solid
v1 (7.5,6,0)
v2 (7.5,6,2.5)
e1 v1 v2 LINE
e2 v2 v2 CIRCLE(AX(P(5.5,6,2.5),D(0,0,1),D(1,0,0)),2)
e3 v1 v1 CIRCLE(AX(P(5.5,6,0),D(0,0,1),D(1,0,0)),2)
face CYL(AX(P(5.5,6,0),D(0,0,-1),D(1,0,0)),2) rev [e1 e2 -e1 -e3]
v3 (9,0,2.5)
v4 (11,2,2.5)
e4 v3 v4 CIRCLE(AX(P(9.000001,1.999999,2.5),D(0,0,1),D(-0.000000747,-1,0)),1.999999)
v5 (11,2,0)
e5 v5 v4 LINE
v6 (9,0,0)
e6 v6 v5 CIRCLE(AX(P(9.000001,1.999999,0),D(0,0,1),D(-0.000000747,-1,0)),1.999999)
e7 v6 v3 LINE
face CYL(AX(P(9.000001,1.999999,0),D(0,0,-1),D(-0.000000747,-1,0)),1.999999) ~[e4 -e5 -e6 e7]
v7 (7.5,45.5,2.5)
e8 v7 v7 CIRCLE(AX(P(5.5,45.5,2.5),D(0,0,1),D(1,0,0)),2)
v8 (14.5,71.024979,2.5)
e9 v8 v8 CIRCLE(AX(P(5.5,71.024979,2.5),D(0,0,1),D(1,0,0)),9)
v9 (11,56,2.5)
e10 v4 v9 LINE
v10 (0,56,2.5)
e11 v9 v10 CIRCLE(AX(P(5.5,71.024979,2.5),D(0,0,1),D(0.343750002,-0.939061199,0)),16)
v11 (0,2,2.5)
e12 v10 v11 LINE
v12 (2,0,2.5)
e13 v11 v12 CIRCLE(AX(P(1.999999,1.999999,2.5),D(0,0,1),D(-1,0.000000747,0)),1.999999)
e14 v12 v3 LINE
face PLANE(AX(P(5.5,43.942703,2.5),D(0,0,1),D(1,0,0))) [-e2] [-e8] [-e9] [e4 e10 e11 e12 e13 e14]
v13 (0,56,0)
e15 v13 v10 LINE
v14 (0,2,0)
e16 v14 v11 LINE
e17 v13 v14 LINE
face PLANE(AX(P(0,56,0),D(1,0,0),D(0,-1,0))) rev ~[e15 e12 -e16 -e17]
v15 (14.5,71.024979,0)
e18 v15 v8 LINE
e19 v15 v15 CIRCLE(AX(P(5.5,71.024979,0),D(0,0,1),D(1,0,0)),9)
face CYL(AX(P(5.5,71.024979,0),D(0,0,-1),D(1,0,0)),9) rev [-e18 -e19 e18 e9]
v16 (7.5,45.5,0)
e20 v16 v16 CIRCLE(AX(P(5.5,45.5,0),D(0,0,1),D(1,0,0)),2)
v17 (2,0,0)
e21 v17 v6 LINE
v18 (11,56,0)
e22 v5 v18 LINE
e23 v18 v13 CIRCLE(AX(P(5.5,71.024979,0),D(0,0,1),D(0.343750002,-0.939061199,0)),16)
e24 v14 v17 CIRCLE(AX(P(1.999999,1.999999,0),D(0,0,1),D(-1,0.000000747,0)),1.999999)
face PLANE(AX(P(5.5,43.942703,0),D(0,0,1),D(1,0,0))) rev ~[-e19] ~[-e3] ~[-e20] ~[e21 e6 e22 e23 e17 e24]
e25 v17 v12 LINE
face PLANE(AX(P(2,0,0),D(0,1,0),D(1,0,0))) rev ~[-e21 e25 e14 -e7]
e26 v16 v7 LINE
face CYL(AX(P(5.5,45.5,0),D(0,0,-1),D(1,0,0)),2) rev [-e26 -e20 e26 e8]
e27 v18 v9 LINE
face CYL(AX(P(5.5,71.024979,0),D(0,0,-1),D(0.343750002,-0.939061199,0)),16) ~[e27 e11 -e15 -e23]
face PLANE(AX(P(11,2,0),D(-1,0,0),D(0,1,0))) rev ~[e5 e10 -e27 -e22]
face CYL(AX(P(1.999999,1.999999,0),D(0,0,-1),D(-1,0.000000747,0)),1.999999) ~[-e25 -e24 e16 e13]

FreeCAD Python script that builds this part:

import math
import FreeCAD as App
import Part
import Sketcher
from FreeCAD import Vector
Q = App.Units.Quantity

doc = App.newDocument("Part")
body = doc.addObject("PartDesign::Body", "Body")

# Sketch on XY plane
sketch1 = body.newObject("Sketcher::SketchObject", "Sketch")
sketch1.AttachmentSupport = (doc.getObject("XY_Plane"), [""])
sketch1.MapMode = "FlatFace"
sketch1.addGeometry([
    Part.ArcOfCircle(Part.Circle(Vector(2, 2, 0), Vector(0, 0, 1), 2), math.radians(180), math.radians(270)),  # 0
    Part.LineSegment(Vector(2, 0, 0), Vector(9, 0, 0)),  # 1
    Part.ArcOfCircle(Part.Circle(Vector(9, 2, 0), Vector(0, 0, 1), 2), math.radians(-90), math.radians(0)),  # 2
    Part.LineSegment(Vector(11, 2, 0), Vector(11, 56, 0)),  # 3
    Part.ArcOfCircle(Part.Circle(Vector(5.5, 71, 0), Vector(0, 0, 1), 16), math.radians(-70), math.radians(250)),  # 4
    Part.LineSegment(Vector(0, 56, 0), Vector(0, 2, 0)),  # 5
    Part.Circle(Vector(5.5, 6, 0), Vector(0, 0, 1), 2),  # 6
    Part.Circle(Vector(5.5, 45.5, 0), Vector(0, 0, 1), 2),  # 7
    Part.Circle(Vector(5.5, 71, 0), Vector(0, 0, 1), 9),  # 8
], False)
sketch1.addConstraint([
    Sketcher.Constraint("Tangent", 0, 2, 1, 1),
    Sketcher.Constraint("Tangent", 1, 2, 2, 1),
    Sketcher.Constraint("Tangent", 2, 2, 3, 1),
    Sketcher.Constraint("Coincident", 3, 2, 4, 1),
    Sketcher.Constraint("Coincident", 4, 2, 5, 1),
    Sketcher.Constraint("Tangent", 5, 2, 0, 1),
    Sketcher.Constraint("Horizontal", 1),
    Sketcher.Constraint("Vertical", 3),
    Sketcher.Constraint("Vertical", 5),
    Sketcher.Constraint("Coincident", 8, 3, 4, 3),
    Sketcher.Constraint("Equal", 0, 2),
    Sketcher.Constraint("Equal", 2, 6),
    Sketcher.Constraint("Equal", 6, 7),
    Sketcher.Constraint("PointOnObject", 0, 2, -1),
    Sketcher.Constraint("PointOnObject", 4, 2, -2),
    Sketcher.Constraint("Horizontal", 3, 2, 4, 2),
    Sketcher.Constraint("Vertical", 4, 3, 6, 3),
    Sketcher.Constraint("Vertical", 6, 3, 7, 3),
    Sketcher.Constraint("Diameter", 6, Q("4 mm")),
    Sketcher.Constraint("Diameter", 8, Q("18 mm")),
    Sketcher.Constraint("Radius", 4, Q("16 mm")),
    Sketcher.Constraint("DistanceX", 1, 1, 1, 2, Q("7 mm")),
    Sketcher.Constraint("DistanceY", 3, 1, 3, 2, Q("54 mm")),
    Sketcher.Constraint("DistanceY", -1, 1, 6, 3, Q("6 mm")),
    Sketcher.Constraint("DistanceY", -1, 1, 7, 3, Q("45.5 mm")),
])
pad1 = body.newObject("PartDesign::Pad", "Pad")
pad1.Profile = sketch1
pad1.Length = 2.5

doc.recompute()
